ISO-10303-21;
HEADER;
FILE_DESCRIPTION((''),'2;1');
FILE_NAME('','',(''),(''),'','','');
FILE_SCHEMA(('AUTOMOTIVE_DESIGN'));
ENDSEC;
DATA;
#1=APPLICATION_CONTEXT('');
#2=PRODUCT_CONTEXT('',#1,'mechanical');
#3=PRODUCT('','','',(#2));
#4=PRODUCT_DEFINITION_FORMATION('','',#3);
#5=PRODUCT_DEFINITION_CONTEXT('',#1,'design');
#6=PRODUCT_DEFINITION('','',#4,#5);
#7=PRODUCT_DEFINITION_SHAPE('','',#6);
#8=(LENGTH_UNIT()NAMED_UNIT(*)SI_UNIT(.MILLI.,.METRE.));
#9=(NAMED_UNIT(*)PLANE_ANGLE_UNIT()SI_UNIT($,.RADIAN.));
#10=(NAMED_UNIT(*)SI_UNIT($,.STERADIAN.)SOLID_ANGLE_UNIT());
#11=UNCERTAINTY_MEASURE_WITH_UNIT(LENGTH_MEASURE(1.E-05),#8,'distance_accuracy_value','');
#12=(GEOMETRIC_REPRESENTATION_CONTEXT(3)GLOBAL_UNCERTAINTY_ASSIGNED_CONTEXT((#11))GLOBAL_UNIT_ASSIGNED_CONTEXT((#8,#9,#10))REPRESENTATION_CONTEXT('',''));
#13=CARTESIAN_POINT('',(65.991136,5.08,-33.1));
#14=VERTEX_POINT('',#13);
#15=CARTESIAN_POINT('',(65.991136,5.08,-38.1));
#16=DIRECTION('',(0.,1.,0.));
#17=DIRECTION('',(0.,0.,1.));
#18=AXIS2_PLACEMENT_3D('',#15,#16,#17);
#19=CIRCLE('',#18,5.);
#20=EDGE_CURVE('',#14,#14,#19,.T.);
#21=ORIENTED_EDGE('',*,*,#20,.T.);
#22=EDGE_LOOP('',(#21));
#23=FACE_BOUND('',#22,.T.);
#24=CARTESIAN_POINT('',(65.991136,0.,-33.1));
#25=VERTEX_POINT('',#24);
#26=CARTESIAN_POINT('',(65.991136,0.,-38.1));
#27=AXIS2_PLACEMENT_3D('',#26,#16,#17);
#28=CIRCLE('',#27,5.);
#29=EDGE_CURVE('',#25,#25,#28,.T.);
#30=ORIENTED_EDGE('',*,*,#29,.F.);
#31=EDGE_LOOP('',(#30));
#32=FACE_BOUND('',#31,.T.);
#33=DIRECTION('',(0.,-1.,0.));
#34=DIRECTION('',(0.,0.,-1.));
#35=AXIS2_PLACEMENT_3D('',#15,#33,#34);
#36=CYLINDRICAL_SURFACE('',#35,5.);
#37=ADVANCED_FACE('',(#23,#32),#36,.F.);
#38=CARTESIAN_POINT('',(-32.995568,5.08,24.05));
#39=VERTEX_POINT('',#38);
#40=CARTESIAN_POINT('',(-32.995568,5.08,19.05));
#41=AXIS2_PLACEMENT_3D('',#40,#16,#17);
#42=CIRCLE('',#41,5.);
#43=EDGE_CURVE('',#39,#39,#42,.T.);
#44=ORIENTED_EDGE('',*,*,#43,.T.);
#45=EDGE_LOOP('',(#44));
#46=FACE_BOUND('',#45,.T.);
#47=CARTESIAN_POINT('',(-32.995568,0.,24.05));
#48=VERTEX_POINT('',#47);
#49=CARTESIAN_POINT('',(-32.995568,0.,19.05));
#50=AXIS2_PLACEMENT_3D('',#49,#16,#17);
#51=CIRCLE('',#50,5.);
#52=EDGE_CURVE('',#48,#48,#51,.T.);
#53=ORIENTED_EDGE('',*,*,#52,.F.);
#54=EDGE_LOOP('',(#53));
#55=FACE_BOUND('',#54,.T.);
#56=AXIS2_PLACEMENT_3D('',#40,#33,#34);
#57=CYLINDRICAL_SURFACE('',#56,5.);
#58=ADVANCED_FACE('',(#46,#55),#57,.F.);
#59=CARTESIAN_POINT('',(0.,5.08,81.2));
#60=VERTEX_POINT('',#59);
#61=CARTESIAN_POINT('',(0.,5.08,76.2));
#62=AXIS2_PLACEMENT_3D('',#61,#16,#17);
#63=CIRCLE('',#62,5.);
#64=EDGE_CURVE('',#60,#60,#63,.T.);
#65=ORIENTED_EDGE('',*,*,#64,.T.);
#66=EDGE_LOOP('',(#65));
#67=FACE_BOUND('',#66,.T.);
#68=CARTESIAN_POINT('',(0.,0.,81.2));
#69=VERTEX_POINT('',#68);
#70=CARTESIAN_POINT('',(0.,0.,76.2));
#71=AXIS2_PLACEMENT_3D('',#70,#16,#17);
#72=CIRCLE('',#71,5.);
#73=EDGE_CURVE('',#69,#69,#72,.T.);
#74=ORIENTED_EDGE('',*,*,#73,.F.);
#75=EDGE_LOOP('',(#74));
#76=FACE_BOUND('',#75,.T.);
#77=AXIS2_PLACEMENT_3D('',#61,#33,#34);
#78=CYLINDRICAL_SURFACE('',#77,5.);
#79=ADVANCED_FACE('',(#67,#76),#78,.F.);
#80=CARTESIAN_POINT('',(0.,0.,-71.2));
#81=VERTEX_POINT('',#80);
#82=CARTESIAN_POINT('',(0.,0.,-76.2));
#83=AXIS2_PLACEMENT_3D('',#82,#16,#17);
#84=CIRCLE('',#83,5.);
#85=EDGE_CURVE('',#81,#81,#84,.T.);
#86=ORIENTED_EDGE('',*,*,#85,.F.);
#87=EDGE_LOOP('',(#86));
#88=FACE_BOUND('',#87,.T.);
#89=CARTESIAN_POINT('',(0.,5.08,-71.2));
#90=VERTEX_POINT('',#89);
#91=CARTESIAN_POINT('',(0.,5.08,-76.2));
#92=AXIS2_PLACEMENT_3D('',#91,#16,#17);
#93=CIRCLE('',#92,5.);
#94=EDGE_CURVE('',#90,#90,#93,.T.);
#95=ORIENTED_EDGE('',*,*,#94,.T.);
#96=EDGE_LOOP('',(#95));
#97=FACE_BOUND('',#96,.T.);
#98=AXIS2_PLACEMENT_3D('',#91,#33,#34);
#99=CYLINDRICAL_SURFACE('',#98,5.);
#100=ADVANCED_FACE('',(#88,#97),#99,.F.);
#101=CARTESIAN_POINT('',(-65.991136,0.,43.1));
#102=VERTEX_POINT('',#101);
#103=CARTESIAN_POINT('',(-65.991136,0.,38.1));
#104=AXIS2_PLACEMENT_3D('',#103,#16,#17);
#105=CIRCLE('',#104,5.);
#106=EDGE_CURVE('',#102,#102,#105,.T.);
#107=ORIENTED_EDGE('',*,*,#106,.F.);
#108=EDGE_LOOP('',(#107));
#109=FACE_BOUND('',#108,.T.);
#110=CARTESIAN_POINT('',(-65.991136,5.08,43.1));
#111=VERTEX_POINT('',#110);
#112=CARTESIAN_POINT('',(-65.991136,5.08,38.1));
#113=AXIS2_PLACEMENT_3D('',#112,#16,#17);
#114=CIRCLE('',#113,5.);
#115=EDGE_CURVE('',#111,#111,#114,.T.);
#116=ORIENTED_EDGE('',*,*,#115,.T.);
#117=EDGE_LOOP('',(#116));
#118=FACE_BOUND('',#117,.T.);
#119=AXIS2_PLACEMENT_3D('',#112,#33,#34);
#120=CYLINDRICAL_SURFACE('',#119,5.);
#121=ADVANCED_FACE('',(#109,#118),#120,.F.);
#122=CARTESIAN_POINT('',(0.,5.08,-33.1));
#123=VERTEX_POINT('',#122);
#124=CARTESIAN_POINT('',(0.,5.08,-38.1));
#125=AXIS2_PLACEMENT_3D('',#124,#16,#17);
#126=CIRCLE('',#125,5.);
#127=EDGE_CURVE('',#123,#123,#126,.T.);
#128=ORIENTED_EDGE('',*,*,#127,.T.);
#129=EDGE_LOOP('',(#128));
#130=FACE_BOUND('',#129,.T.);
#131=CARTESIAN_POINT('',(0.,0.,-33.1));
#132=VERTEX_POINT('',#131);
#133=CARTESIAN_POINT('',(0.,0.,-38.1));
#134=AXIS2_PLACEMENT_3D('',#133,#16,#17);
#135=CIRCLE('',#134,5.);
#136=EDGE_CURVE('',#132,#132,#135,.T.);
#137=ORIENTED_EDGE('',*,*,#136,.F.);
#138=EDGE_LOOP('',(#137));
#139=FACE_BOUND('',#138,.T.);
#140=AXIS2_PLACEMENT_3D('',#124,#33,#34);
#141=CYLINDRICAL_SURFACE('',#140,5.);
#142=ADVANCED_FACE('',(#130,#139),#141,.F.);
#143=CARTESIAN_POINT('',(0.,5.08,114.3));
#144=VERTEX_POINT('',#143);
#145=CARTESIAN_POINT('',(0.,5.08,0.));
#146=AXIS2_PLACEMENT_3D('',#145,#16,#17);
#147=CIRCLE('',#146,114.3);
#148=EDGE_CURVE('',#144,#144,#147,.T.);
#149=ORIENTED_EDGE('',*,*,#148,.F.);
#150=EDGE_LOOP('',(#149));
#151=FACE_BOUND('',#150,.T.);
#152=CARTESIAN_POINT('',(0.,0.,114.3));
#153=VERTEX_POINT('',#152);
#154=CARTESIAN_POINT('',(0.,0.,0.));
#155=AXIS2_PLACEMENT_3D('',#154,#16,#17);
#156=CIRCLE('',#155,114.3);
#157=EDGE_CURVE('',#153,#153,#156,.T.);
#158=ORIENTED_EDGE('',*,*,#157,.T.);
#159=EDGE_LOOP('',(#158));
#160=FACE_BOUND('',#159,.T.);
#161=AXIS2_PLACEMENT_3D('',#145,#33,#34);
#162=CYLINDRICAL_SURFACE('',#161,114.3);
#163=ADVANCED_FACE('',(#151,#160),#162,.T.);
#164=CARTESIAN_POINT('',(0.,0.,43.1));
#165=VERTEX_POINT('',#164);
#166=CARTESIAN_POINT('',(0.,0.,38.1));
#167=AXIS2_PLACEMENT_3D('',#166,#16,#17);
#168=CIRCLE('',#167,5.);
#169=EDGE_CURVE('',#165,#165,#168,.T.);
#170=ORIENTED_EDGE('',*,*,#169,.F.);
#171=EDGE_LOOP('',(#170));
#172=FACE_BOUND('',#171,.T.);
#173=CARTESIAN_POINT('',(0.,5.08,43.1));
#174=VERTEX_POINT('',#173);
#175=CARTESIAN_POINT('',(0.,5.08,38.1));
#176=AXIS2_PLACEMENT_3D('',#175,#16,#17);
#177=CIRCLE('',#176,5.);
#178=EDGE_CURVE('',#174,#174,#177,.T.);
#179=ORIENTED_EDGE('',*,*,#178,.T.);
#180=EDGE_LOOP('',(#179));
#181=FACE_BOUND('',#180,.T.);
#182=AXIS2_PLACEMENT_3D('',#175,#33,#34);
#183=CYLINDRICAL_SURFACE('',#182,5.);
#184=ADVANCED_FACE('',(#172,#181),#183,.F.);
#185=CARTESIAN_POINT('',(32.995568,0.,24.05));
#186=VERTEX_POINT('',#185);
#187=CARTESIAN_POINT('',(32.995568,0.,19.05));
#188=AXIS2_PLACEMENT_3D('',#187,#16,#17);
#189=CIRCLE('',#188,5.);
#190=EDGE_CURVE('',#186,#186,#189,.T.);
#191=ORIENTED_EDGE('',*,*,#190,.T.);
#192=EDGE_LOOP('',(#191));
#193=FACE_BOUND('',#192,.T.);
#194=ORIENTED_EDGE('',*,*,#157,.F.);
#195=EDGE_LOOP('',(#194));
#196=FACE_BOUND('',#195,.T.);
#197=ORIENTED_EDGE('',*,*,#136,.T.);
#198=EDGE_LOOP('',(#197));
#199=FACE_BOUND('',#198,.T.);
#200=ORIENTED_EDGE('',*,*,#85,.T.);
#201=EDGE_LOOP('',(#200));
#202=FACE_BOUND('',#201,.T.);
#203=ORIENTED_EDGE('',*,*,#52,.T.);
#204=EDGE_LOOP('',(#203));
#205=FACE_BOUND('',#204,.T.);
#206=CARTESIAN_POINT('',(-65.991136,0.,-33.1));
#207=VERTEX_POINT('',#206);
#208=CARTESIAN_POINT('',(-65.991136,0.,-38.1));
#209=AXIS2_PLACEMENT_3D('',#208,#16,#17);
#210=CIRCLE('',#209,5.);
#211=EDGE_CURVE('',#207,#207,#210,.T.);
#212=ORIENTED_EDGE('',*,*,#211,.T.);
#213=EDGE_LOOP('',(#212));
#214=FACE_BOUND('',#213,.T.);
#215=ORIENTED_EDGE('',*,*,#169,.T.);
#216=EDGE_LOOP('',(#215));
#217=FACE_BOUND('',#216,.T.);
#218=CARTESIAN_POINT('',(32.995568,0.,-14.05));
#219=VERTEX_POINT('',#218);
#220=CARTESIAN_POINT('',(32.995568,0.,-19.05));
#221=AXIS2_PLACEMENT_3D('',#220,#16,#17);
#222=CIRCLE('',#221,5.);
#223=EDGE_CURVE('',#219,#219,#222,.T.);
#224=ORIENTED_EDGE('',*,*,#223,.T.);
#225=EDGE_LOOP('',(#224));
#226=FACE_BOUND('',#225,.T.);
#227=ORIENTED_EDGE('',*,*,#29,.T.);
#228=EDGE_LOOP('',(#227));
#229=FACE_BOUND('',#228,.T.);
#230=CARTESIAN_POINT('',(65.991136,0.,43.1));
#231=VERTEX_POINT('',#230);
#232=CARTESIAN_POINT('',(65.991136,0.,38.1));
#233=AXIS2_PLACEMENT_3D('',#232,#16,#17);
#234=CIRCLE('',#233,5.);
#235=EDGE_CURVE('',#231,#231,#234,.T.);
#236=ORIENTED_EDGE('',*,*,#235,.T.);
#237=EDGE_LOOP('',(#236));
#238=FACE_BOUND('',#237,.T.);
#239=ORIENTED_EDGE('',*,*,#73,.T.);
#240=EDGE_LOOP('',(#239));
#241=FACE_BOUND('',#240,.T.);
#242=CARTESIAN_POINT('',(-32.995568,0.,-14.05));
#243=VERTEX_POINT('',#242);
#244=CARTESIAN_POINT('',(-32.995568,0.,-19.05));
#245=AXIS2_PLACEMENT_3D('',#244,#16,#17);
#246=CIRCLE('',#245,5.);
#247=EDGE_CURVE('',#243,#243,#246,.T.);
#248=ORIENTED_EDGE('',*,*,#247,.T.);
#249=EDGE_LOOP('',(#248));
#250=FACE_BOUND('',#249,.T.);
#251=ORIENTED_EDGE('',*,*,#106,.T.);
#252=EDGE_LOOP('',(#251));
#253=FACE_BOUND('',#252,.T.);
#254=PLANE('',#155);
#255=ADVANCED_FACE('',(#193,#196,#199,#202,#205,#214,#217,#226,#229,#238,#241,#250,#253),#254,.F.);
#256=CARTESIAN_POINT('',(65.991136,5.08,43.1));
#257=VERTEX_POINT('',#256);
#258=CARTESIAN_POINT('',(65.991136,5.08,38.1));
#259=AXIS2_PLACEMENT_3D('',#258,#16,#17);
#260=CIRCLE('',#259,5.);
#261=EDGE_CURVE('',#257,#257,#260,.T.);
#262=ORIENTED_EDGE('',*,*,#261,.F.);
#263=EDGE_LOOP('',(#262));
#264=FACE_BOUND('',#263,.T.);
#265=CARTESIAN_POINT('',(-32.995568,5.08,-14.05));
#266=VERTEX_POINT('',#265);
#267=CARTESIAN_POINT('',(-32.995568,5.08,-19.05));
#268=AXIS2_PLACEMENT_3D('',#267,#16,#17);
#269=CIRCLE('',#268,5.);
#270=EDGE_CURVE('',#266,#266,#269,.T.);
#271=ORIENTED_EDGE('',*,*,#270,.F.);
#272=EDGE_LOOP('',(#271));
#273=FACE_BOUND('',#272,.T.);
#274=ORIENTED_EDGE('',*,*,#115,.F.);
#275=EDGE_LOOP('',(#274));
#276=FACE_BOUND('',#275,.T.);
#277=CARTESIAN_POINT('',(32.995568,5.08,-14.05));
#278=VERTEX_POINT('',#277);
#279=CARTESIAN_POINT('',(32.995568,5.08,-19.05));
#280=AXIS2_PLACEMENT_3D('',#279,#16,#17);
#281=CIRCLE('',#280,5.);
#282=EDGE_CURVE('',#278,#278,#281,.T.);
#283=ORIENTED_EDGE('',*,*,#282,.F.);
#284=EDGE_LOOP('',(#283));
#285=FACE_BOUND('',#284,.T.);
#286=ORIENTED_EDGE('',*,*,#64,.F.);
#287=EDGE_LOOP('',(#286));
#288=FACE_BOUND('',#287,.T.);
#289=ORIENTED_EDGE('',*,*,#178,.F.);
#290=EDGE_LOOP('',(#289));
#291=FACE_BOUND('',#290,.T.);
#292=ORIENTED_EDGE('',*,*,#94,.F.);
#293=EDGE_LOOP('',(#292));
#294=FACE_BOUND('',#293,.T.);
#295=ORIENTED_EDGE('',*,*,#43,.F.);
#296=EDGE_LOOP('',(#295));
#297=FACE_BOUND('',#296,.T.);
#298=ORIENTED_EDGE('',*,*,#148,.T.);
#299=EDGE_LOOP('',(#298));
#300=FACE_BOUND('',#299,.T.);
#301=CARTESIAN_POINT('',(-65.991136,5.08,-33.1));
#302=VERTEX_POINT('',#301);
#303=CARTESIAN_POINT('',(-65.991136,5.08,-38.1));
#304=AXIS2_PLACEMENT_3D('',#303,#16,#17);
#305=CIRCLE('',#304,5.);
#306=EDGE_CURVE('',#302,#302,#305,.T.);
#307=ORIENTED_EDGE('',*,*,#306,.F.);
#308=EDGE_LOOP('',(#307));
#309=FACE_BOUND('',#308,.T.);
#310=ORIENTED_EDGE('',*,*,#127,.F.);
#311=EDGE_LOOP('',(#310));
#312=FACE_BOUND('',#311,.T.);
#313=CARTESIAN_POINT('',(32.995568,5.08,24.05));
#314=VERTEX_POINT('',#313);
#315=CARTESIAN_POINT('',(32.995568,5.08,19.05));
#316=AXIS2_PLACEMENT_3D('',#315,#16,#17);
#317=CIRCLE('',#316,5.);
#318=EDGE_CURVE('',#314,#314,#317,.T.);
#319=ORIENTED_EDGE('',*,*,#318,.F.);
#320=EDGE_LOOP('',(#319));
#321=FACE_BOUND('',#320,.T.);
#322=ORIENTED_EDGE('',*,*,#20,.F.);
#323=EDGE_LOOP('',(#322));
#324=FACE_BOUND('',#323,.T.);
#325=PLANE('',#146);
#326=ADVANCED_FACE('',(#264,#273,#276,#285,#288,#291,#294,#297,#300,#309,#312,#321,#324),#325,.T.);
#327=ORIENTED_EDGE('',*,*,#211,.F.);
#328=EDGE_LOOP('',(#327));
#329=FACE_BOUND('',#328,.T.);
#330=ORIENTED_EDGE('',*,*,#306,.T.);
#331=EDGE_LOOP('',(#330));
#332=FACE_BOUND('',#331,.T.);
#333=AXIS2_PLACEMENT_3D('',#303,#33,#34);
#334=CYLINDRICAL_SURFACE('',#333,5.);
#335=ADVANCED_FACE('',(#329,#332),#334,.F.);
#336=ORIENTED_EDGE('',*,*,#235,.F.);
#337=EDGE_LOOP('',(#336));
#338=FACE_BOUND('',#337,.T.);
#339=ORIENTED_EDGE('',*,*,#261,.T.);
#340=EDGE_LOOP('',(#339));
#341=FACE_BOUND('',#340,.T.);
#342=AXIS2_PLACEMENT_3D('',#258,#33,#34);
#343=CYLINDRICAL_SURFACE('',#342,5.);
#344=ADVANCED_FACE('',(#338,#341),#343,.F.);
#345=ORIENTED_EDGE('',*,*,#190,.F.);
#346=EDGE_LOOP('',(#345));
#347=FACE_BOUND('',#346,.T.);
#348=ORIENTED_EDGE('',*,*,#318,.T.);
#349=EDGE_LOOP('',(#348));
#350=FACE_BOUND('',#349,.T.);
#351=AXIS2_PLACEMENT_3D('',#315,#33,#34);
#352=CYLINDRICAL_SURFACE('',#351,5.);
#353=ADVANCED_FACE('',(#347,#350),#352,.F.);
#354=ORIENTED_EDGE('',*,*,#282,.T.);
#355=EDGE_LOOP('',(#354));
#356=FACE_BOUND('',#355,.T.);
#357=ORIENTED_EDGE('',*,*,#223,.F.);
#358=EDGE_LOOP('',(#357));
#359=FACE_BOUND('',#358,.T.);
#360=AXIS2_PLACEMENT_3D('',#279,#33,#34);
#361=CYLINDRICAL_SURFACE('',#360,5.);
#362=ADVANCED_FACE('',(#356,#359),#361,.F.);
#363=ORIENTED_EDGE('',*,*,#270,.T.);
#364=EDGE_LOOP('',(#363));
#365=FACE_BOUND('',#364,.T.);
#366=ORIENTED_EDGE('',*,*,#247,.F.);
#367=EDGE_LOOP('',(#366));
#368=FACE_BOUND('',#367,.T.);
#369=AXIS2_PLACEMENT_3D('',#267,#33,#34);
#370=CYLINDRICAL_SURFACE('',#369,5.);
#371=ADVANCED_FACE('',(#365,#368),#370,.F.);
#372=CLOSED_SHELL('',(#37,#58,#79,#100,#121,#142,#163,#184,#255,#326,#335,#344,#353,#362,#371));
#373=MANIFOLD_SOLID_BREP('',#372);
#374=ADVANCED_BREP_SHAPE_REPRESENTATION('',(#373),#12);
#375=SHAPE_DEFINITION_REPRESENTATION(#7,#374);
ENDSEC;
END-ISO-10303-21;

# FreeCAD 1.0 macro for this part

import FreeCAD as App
import Part
import Sketcher

V = App.Vector
Q = App.Units.Quantity

doc = App.newDocument("Part")
body = doc.addObject("PartDesign::Body", "Body")

# Sketch on XZ plane
sketch1 = body.newObject("Sketcher::SketchObject", "Sketch")
sketch1.AttachmentSupport = (doc.getObject("XZ_Plane"), [""])
sketch1.MapMode = "FlatFace"
sketch1.addGeometry([
    Part.Circle(V(0, 0, 0), V(0, 0, 1), 114),  # 0
    Part.Circle(V(-66, 38, 0), V(0, 0, 1), 5),  # 1
    Part.Circle(V(-33, 19, 0), V(0, 0, 1), 5),  # 2
    Part.Circle(V(0, 76, 0), V(0, 0, 1), 5),  # 3
    Part.Circle(V(0, 38, 0), V(0, 0, 1), 5),  # 4
    Part.Circle(V(33, 19, 0), V(0, 0, 1), 5),  # 5
    Part.Circle(V(66, 38, 0), V(0, 0, 1), 5),  # 6
    Part.Circle(V(-66, -38, 0), V(0, 0, 1), 5),  # 7
    Part.Circle(V(-33, -19, 0), V(0, 0, 1), 5),  # 8
    Part.Circle(V(33, -19, 0), V(0, 0, 1), 5),  # 9
    Part.Circle(V(0, -38, 0), V(0, 0, 1), 5),  # 10
    Part.Circle(V(66, -38, 0), V(0, 0, 1), 5),  # 11
    Part.Circle(V(0, -76, 0), V(0, 0, 1), 5),  # 12
], False)
sketch1.addConstraint([
    Sketcher.Constraint("Coincident", 0, 3, -1, 1),
    Sketcher.Constraint("Equal", 1, 2),
    Sketcher.Constraint("Equal", 2, 3),
    Sketcher.Constraint("Equal", 3, 4),
    Sketcher.Constraint("Equal", 4, 5),
    Sketcher.Constraint("Equal", 5, 6),
    Sketcher.Constraint("Equal", 6, 7),
    Sketcher.Constraint("Equal", 7, 8),
    Sketcher.Constraint("Equal", 8, 9),
    Sketcher.Constraint("Equal", 9, 10),
    Sketcher.Constraint("Equal", 10, 11),
    Sketcher.Constraint("Equal", 11, 12),
    Sketcher.Constraint("Symmetric", 6, 3, 7, 3, -1, 1),
    Sketcher.Constraint("Symmetric", 5, 3, 8, 3, -1, 1),
    Sketcher.Constraint("Symmetric", 2, 3, 9, 3, -1, 1),
    Sketcher.Constraint("Symmetric", 4, 3, 10, 3, -1, 1),
    Sketcher.Constraint("Symmetric", 1, 3, 11, 3, -1, 1),
    Sketcher.Constraint("Symmetric", 3, 3, 12, 3, -1, 1),
    Sketcher.Constraint("Symmetric", 2, 3, 5, 3, -2),
    Sketcher.Constraint("Symmetric", 1, 3, 6, 3, -2),
    Sketcher.Constraint("PointOnObject", 3, 3, -2),
    Sketcher.Constraint("PointOnObject", 4, 3, -2),
    Sketcher.Constraint("Horizontal", 1, 3, 4, 3),
    Sketcher.Constraint("Diameter", 0, Q("9 in")),
    Sketcher.Constraint("DistanceY", -1, 1, 3, 3, Q("3 in")),
    Sketcher.Constraint("DistanceY", 7, 3, 1, 3, Q("3 in")),
    Sketcher.Constraint("DistanceY", 8, 3, 2, 3, Q("1.5 in")),
    Sketcher.Constraint("Diameter", 1, 10.0),
    Sketcher.Constraint("DistanceX", 1, 3, -1, 1, 65.991136),
    Sketcher.Constraint("DistanceX", 2, 3, -1, 1, 32.995568),
])
pad1 = body.newObject("PartDesign::Pad", "Pad")
pad1.Profile = sketch1
pad1.Length = Q("0.2 in")
pad1.Reversed = True

doc.recompute()
